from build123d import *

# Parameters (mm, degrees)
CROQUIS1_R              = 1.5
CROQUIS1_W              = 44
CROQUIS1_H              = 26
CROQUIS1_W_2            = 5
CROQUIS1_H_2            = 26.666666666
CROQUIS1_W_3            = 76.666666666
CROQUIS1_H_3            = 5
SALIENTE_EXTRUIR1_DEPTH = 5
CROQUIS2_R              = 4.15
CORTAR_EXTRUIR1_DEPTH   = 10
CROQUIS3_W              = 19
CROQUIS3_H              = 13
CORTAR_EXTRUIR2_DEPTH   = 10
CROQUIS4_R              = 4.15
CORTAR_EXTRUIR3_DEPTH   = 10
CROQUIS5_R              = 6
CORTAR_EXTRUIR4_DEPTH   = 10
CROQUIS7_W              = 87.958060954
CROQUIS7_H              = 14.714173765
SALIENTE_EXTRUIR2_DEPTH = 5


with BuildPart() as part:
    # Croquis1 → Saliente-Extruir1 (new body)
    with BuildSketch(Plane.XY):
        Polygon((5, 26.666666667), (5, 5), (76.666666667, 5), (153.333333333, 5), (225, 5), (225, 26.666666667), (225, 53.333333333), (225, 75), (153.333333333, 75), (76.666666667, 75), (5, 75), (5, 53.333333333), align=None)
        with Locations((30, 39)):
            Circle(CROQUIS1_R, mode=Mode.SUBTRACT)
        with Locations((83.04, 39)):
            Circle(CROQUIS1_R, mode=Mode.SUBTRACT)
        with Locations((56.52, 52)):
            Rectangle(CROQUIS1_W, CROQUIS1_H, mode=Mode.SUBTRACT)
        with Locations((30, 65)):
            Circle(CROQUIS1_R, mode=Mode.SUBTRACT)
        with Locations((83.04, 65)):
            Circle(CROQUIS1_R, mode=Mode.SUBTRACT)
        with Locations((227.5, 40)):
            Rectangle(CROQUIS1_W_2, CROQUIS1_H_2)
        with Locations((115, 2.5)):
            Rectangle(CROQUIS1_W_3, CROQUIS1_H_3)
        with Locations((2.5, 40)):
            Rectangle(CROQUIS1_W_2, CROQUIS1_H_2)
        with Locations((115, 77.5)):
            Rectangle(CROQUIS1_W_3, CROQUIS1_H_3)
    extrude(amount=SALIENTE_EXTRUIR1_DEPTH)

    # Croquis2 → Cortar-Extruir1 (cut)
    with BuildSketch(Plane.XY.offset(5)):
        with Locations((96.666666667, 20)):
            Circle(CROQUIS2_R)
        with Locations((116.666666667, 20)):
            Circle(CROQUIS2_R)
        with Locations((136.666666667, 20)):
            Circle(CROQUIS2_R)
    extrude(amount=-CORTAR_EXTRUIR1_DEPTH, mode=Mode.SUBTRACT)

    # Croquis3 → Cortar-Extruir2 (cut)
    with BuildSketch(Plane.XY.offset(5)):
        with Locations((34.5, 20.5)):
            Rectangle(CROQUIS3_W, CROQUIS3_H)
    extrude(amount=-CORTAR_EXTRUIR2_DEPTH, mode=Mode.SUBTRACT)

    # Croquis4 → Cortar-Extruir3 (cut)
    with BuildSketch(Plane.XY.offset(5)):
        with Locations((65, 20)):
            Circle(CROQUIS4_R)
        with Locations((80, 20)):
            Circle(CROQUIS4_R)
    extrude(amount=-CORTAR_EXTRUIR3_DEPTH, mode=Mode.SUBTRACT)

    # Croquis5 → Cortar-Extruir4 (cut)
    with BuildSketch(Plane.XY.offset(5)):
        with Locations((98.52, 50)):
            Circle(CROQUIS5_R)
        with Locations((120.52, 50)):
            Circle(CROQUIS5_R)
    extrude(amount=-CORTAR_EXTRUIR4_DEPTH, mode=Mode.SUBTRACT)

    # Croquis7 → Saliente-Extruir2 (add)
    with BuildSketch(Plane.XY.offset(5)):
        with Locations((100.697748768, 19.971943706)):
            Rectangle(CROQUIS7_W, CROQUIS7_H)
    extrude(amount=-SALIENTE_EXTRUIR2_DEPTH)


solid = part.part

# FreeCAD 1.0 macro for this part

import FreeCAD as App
import Part
import Sketcher
from FreeCAD import Vector


def add_polygon(sketch, points):
    """Adds a closed chain of lines whose ends are joined by coincident constraints."""
    first, n = sketch.GeometryCount, len(points)
    for a, b in zip(points, points[1:] + points[:1]):
        sketch.addGeometry(Part.LineSegment(App.Vector(*a, 0), App.Vector(*b, 0)), False)
    for i in range(n):
        sketch.addConstraint(Sketcher.Constraint("Coincident", first + i, 2, first + (i + 1) % n, 1))

doc = App.newDocument("Part")
body = doc.addObject("PartDesign::Body", "Body")

sketch1 = doc.addObject("Sketcher::SketchObject", "Sketch")
body.addObject(sketch1)
sketch1.AttachmentSupport = (doc.XY_Plane, [""])
sketch1.MapMode = "FlatFace"
add_polygon(sketch1, [(5, 5), (76.666667, 5), (76.666667, 0), (153.333333, 0), (153.333333, 5), (225, 5), (225, 26.666667), (230, 26.666667), (230, 53.333333), (225, 53.333333), (225, 75), (153.333333, 75), (153.333333, 80), (76.666667, 80), (76.666667, 75), (5, 75), (5, 53.333333), (0, 53.333333), (0, 26.666667), (5, 26.666667)])
sketch1.addGeometry(Part.Circle(Vector(30, 39, 0), Vector(0, 0, 1), 1.5), False)
sketch1.addGeometry(Part.Circle(Vector(83.04, 39, 0), Vector(0, 0, 1), 1.5), False)
sketch1.addGeometry(Part.Circle(Vector(30, 65, 0), Vector(0, 0, 1), 1.5), False)
add_polygon(sketch1, [(78.52, 39), (34.52, 39), (34.52, 65), (78.52, 65)])
sketch1.addGeometry(Part.Circle(Vector(83.04, 65, 0), Vector(0, 0, 1), 1.5), False)
sketch1.addConstraint([
    Sketcher.Constraint("Horizontal", 0),
    Sketcher.Constraint("Vertical", 1),
    Sketcher.Constraint("Horizontal", 2),
    Sketcher.Constraint("Vertical", 3),
    Sketcher.Constraint("Horizontal", 4),
    Sketcher.Constraint("Vertical", 5),
    Sketcher.Constraint("Horizontal", 6),
    Sketcher.Constraint("Vertical", 7),
    Sketcher.Constraint("Horizontal", 8),
    Sketcher.Constraint("Vertical", 9),
    Sketcher.Constraint("Horizontal", 10),
    Sketcher.Constraint("Vertical", 11),
    Sketcher.Constraint("Horizontal", 12),
    Sketcher.Constraint("Vertical", 13),
    Sketcher.Constraint("Horizontal", 14),
    Sketcher.Constraint("Vertical", 15),
    Sketcher.Constraint("Horizontal", 16),
    Sketcher.Constraint("Vertical", 17),
    Sketcher.Constraint("Horizontal", 18),
    Sketcher.Constraint("Vertical", 19),
    Sketcher.Constraint("Horizontal", 23),
    Sketcher.Constraint("Vertical", 24),
    Sketcher.Constraint("Horizontal", 25),
    Sketcher.Constraint("Vertical", 26),
    Sketcher.Constraint("Equal", 20, 21),
    Sketcher.Constraint("Equal", 21, 22),
    Sketcher.Constraint("Equal", 22, 27),
    Sketcher.Constraint("PointOnObject", 1, 2, -1),
    Sketcher.Constraint("PointOnObject", 16, 2, -2),
    Sketcher.Constraint("Horizontal", 20, 3, 21, 3),
    Sketcher.Constraint("Horizontal", 22, 3, 27, 3),
    Sketcher.Constraint("Horizontal", 0, 2, 3, 2),
    Sketcher.Constraint("Horizontal", 10, 2, 13, 2),
    Sketcher.Constraint("Horizontal", 8, 2, 15, 2),
    Sketcher.Constraint("Horizontal", 6, 2, 17, 2),
    Sketcher.Constraint("Horizontal", 21, 3, 23, 2),
    Sketcher.Constraint("Horizontal", 27, 3, 24, 2),
    Sketcher.Constraint("Vertical", 20, 3, 22, 3),
    Sketcher.Constraint("Vertical", 21, 3, 27, 3),
    Sketcher.Constraint("Vertical", 5, 2, 8, 2),
    Sketcher.Constraint("Vertical", 3, 2, 10, 2),
    Sketcher.Constraint("Vertical", 1, 2, 12, 2),
    Sketcher.Constraint("Vertical", 15, 2, 18, 2),
    Sketcher.Constraint("Equal", 0, 4),
    Sketcher.Constraint("Equal", 8, 16),
    Sketcher.Constraint("Equal", 18, 1),
    Sketcher.Constraint("Equal", 5, 9),
    Sketcher.Constraint("Equal", 3, 11),
    Sketcher.Constraint("Diameter", 20, 3.0),
    Sketcher.Constraint("DistanceX", 6, 1, 6, 2, 5.0),
    Sketcher.Constraint("DistanceX", 23, 2, 23, 1, 44.0),
    Sketcher.Constraint("DistanceY", 24, 1, 24, 2, 26.0),
    Sketcher.Constraint("DistanceX", -1, 1, 20, 3, 30.0),
    Sketcher.Constraint("DistanceY", -1, 1, 20, 3, 39.0),
    Sketcher.Constraint("DistanceX", -1, 1, 4, 2, 225.0),
    Sketcher.Constraint("DistanceY", -1, 1, 9, 2, 75.0),
    Sketcher.Constraint("DistanceX", -1, 1, 21, 3, 83.04),
    Sketcher.Constraint("DistanceX", -1, 1, 23, 2, 34.52),
    Sketcher.Constraint("DistanceX", 0, 1, 0, 2, 71.666667),
    Sketcher.Constraint("DistanceY", 5, 1, 5, 2, 21.666667),
])
pad1 = doc.addObject("PartDesign::Pad", "Pad")
body.addObject(pad1)
pad1.Profile = sketch1
pad1.Length = 5

sketch2 = doc.addObject("Sketcher::SketchObject", "Sketch001")
body.addObject(sketch2)
sketch2.AttachmentSupport = (doc.XY_Plane, [""])
sketch2.MapMode = "FlatFace"
sketch2.AttachmentOffset = App.Placement(Vector(0, 0, 5), App.Rotation())
sketch2.addGeometry([
    Part.Circle(Vector(96.666667, 20, 0), Vector(0, 0, 1), 4.15),
    Part.Circle(Vector(116.666667, 20, 0), Vector(0, 0, 1), 4.15),
    Part.Circle(Vector(136.666667, 20, 0), Vector(0, 0, 1), 4.15),
], False)
sketch2.addConstraint([
    Sketcher.Constraint("Equal", 0, 1),
    Sketcher.Constraint("Equal", 1, 2),
    Sketcher.Constraint("Horizontal", 0, 3, 1, 3),
    Sketcher.Constraint("Horizontal", 1, 3, 2, 3),
    Sketcher.Constraint("Diameter", 0, 8.3),
    Sketcher.Constraint("DistanceY", -1, 1, 0, 3, 20.0),
    Sketcher.Constraint("DistanceX", 0, 3, 1, 3, 20.0),
    Sketcher.Constraint("DistanceX", 1, 3, 2, 3, 20.0),
    Sketcher.Constraint("DistanceX", -1, 1, 0, 3, 96.666667),
])
pocket1 = doc.addObject("PartDesign::Pocket", "Pocket")
body.addObject(pocket1)
pocket1.Profile = sketch2
pocket1.Length = 10

sketch3 = doc.addObject("Sketcher::SketchObject", "Sketch002")
body.addObject(sketch3)
sketch3.AttachmentSupport = (doc.XY_Plane, [""])
sketch3.MapMode = "FlatFace"
sketch3.AttachmentOffset = App.Placement(Vector(0, 0, 5), App.Rotation())
add_polygon(sketch3, [(25, 27), (25, 14), (44, 14), (44, 27)])
sketch3.addConstraint([
    Sketcher.Constraint("Vertical", 0),
    Sketcher.Constraint("Horizontal", 1),
    Sketcher.Constraint("Vertical", 2),
    Sketcher.Constraint("Horizontal", 3),
    Sketcher.Constraint("DistanceX", 1, 1, 1, 2, 19.0),
    Sketcher.Constraint("DistanceY", 0, 2, 0, 1, 13.0),
    Sketcher.Constraint("DistanceX", -1, 1, 0, 2, 25.0),
    Sketcher.Constraint("DistanceY", -1, 1, 0, 2, 14.0),
])
pocket2 = doc.addObject("PartDesign::Pocket", "Pocket001")
body.addObject(pocket2)
pocket2.Profile = sketch3
pocket2.Length = 10

sketch4 = doc.addObject("Sketcher::SketchObject", "Sketch003")
body.addObject(sketch4)
sketch4.AttachmentSupport = (doc.XY_Plane, [""])
sketch4.MapMode = "FlatFace"
sketch4.AttachmentOffset = App.Placement(Vector(0, 0, 5), App.Rotation())
sketch4.addGeometry([
    Part.Circle(Vector(65, 20, 0), Vector(0, 0, 1), 4.15),
    Part.Circle(Vector(80, 20, 0), Vector(0, 0, 1), 4.15),
], False)
sketch4.addConstraint([
    Sketcher.Constraint("Equal", 0, 1),
    Sketcher.Constraint("Horizontal", 0, 3, 1, 3),
    Sketcher.Constraint("Diameter", 0, 8.3),
    Sketcher.Constraint("DistanceX", -1, 1, 0, 3, 65.0),
    Sketcher.Constraint("DistanceY", -1, 1, 0, 3, 20.0),
    Sketcher.Constraint("DistanceX", -1, 1, 1, 3, 80.0),
])
pocket3 = doc.addObject("PartDesign::Pocket", "Pocket002")
body.addObject(pocket3)
pocket3.Profile = sketch4
pocket3.Length = 10

sketch5 = doc.addObject("Sketcher::SketchObject", "Sketch004")
body.addObject(sketch5)
sketch5.AttachmentSupport = (doc.XY_Plane, [""])
sketch5.MapMode = "FlatFace"
sketch5.AttachmentOffset = App.Placement(Vector(0, 0, 5), App.Rotation())
sketch5.addGeometry([
    Part.Circle(Vector(98.52, 50, 0), Vector(0, 0, 1), 6),
    Part.Circle(Vector(120.52, 50, 0), Vector(0, 0, 1), 6),
], False)
sketch5.addConstraint([
    Sketcher.Constraint("Equal", 0, 1),
    Sketcher.Constraint("Horizontal", 0, 3, 1, 3),
    Sketcher.Constraint("Diameter", 0, 12.0),
    Sketcher.Constraint("DistanceY", -1, 1, 0, 3, 50.0),
    Sketcher.Constraint("DistanceX", 0, 3, 1, 3, 22.0),
    Sketcher.Constraint("DistanceX", -1, 1, 0, 3, 98.52),
])
pocket4 = doc.addObject("PartDesign::Pocket", "Pocket003")
body.addObject(pocket4)
pocket4.Profile = sketch5
pocket4.Length = 10

sketch6 = doc.addObject("Sketcher::SketchObject", "Sketch005")
body.addObject(sketch6)
sketch6.AttachmentSupport = (doc.XY_Plane, [""])
sketch6.MapMode = "FlatFace"
sketch6.AttachmentOffset = App.Placement(Vector(0, 0, 5), App.Rotation())
add_polygon(sketch6, [(56.718718, 27.329031), (56.718718, 12.614857), (144.676779, 12.614857), (144.676779, 27.329031)])
sketch6.addConstraint([
    Sketcher.Constraint("Vertical", 0),
    Sketcher.Constraint("Horizontal", 1),
    Sketcher.Constraint("Vertical", 2),
    Sketcher.Constraint("Horizontal", 3),
    Sketcher.Constraint("DistanceX", 1, 1, 1, 2, 87.958061),
    Sketcher.Constraint("DistanceY", 0, 2, 0, 1, 14.714174),
    Sketcher.Constraint("DistanceX", -1, 1, 0, 2, 56.718718),
    Sketcher.Constraint("DistanceY", -1, 1, 2, 2, 27.329031),
])
pad2 = doc.addObject("PartDesign::Pad", "Pad001")
body.addObject(pad2)
pad2.Profile = sketch6
pad2.Length = 5
pad2.Reversed = True

doc.recompute()
